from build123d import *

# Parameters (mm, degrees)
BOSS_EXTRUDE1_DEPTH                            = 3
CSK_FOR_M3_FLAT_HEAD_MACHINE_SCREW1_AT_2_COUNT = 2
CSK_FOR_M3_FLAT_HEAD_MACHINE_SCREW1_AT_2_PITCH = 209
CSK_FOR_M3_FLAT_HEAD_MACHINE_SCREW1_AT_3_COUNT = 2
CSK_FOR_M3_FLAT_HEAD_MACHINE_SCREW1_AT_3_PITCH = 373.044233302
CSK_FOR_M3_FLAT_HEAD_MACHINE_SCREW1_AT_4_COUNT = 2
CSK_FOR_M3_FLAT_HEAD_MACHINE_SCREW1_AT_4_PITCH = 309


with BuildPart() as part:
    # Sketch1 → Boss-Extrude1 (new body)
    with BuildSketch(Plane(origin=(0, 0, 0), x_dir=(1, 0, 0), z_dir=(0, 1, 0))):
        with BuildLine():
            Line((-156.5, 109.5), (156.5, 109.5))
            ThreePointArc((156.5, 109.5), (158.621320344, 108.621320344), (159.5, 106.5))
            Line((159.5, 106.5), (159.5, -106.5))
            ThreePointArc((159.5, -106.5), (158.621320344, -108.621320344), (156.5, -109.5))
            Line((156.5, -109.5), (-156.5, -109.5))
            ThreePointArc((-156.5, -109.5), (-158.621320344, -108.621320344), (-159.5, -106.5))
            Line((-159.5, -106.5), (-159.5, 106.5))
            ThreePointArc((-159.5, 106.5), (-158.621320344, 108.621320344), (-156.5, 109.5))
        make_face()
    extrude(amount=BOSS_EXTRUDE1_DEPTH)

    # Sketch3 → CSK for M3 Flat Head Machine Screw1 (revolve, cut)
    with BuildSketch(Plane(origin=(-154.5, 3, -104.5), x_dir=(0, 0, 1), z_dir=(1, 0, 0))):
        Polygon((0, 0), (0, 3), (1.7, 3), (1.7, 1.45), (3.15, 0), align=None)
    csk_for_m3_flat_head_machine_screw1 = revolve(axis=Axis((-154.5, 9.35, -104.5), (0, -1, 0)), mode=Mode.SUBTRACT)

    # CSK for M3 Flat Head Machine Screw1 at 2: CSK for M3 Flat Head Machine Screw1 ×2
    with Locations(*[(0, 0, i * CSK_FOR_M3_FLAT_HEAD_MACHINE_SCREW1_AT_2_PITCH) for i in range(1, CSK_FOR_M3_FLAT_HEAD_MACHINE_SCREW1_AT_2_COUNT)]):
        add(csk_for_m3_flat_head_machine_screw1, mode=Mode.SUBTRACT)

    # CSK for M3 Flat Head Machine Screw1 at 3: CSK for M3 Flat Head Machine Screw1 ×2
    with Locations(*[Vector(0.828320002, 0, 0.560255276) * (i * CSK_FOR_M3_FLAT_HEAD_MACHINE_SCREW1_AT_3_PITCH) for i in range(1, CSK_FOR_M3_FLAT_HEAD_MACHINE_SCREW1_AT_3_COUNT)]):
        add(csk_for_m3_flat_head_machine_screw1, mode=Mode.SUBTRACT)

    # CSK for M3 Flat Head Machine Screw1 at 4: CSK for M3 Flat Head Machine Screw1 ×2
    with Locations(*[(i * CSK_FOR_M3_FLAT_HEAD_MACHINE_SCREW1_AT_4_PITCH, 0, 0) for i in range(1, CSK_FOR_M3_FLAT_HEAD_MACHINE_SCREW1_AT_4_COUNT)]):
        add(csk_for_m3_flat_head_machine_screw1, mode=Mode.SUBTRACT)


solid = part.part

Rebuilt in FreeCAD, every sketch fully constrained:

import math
import FreeCAD as App
import Part
import Sketcher

V = App.Vector
Q = App.Units.Quantity

doc = App.newDocument("Part")
body = doc.addObject("PartDesign::Body", "Body")

# Sketch on XZ plane
sketch1 = body.newObject("Sketcher::SketchObject", "Sketch")
sketch1.AttachmentSupport = (doc.getObject("XZ_Plane"), [""])
sketch1.MapMode = "FlatFace"
sketch1.addGeometry(Part.LineSegment(V(156.5, -109.5, 0), V(-156.5, -109.5, 0)), False)
sketch1.addGeometry(Part.ArcOfCircle(Part.Circle(V(-156.5, -106.5, 0), V(0, 0, 1), 3), math.radians(180), math.radians(270)), False)
sketch1.addGeometry(Part.LineSegment(V(-159.5, -106.5, 0), V(-159.5, 106.5, 0)), False)
sketch1.addGeometry(Part.ArcOfCircle(Part.Circle(V(-156.5, 106.5, 0), V(0, 0, 1), 3), math.radians(90), math.radians(180)), False)
sketch1.addGeometry(Part.LineSegment(V(-156.5, 109.5, 0), V(156.5, 109.5, 0)), False)
sketch1.addGeometry(Part.ArcOfCircle(Part.Circle(V(156.5, 106.5, 0), V(0, 0, 1), 3), math.radians(0), math.radians(90)), False)
sketch1.addGeometry(Part.LineSegment(V(159.5, 106.5, 0), V(159.5, -106.5, 0)), False)
sketch1.addGeometry(Part.ArcOfCircle(Part.Circle(V(156.5, -106.5, 0), V(0, 0, 1), 3), math.radians(-90), math.radians(0)), False)
sketch1.addConstraint(Sketcher.Constraint("Tangent", 0, 2, 1, 2))
sketch1.addConstraint(Sketcher.Constraint("Tangent", 1, 1, 2, 1))
sketch1.addConstraint(Sketcher.Constraint("Tangent", 2, 2, 3, 2))
sketch1.addConstraint(Sketcher.Constraint("Tangent", 3, 1, 4, 1))
sketch1.addConstraint(Sketcher.Constraint("Tangent", 4, 2, 5, 2))
sketch1.addConstraint(Sketcher.Constraint("Tangent", 5, 1, 6, 1))
sketch1.addConstraint(Sketcher.Constraint("Tangent", 6, 2, 7, 2))
sketch1.addConstraint(Sketcher.Constraint("Tangent", 7, 1, 0, 1))
sketch1.addConstraint(Sketcher.Constraint("Horizontal", 0))
sketch1.addConstraint(Sketcher.Constraint("Vertical", 2))
sketch1.addConstraint(Sketcher.Constraint("Horizontal", 4))
sketch1.addConstraint(Sketcher.Constraint("Vertical", 6))
sketch1.addConstraint(Sketcher.Constraint("Equal", 1, 3))
sketch1.addConstraint(Sketcher.Constraint("Equal", 3, 5))
sketch1.addConstraint(Sketcher.Constraint("Equal", 5, 7))
sketch1.addConstraint(Sketcher.Constraint("Symmetric", 1, 3, 5, 3, -1, 1))
sketch1.addConstraint(Sketcher.Constraint("Radius", 1, 3.0))
sketch1.addConstraint(Sketcher.Constraint("DistanceX", 0, 2, 0, 1, 313.0))
sketch1.addConstraint(Sketcher.Constraint("DistanceY", 2, 1, 2, 2, 213.0))
pad1 = body.newObject("PartDesign::Pad", "Pad")
pad1.Profile = sketch1
pad1.Length = 3
pad1.Reversed = True

# Sketch on YZ plane
sketch2 = body.newObject("Sketcher::SketchObject", "Sketch001")
sketch2.AttachmentSupport = (doc.getObject("YZ_Plane"), [""])
sketch2.MapMode = "FlatFace"
sketch2.AttachmentOffset = App.Placement(V(0, 0, -154.5), App.Rotation())
sketch2.addGeometry(Part.LineSegment(V(0, -104.5, 0), V(3, -104.5, 0)), False)
sketch2.addGeometry(Part.LineSegment(V(3, -104.5, 0), V(3, -101.3, 0)), False)
sketch2.addGeometry(Part.LineSegment(V(3, -101.3, 0), V(1.6, -102.8, 0)), False)
sketch2.addGeometry(Part.LineSegment(V(1.6, -102.8, 0), V(0, -102.8, 0)), False)
sketch2.addGeometry(Part.LineSegment(V(0, -102.8, 0), V(0, -104.5, 0)), False)
sketch2.addGeometry(Part.LineSegment(V(3, -104.5, 0), V(0, -104.5, 0)), True)  # axis
sketch2.addConstraint(Sketcher.Constraint("Coincident", 0, 2, 1, 1))
sketch2.addConstraint(Sketcher.Constraint("Coincident", 1, 2, 2, 1))
sketch2.addConstraint(Sketcher.Constraint("Coincident", 2, 2, 3, 1))
sketch2.addConstraint(Sketcher.Constraint("Coincident", 3, 2, 4, 1))
sketch2.addConstraint(Sketcher.Constraint("Coincident", 4, 2, 0, 1))
sketch2.addConstraint(Sketcher.Constraint("Horizontal", 0))
sketch2.addConstraint(Sketcher.Constraint("Vertical", 1))
sketch2.addConstraint(Sketcher.Constraint("Horizontal", 3))
sketch2.addConstraint(Sketcher.Constraint("Vertical", 4))
sketch2.addConstraint(Sketcher.Constraint("Horizontal", 5))
sketch2.addConstraint(Sketcher.Constraint("Coincident", 5, 1, 0, 2))
sketch2.addConstraint(Sketcher.Constraint("PointOnObject", 3, 2, -2))
sketch2.addConstraint(Sketcher.Constraint("PointOnObject", 5, 2, -2))
sketch2.addConstraint(Sketcher.Constraint("DistanceX", 0, 1, 0, 2, 3.0))
sketch2.addConstraint(Sketcher.Constraint("Angle", 2, Q("-135 deg")))
sketch2.addConstraint(Sketcher.Constraint("DistanceY", 4, 2, 4, 1, 1.7))
sketch2.addConstraint(Sketcher.Constraint("DistanceX", 3, 2, 3, 1, 1.55))
sketch2.addConstraint(Sketcher.Constraint("DistanceY", 0, 2, -1, 1, 104.5))
groove = body.newObject("PartDesign::Groove", "Groove")
groove.Profile = sketch2
groove.ReferenceAxis = (sketch2, ["Axis0"])
groove.Angle = 360
doc.recompute()

linearpattern = body.newObject("PartDesign::LinearPattern", "LinearPattern")
linearpattern.Originals = [groove]
linearpattern.Direction = (doc.getObject("Z_Axis"), [""])
linearpattern.Mode = "offset"
linearpattern.Offset = 209
linearpattern.Occurrences = 2
body.Tip = linearpattern
doc.recompute()

datumline = body.newObject("PartDesign::Line", "DatumLine")
datumline.Placement = App.Placement(V(0, 0, 0), App.Rotation(V(0, 0, 1), V(0.828320002, 0, 0.560255276)))
linearpattern2 = body.newObject("PartDesign::LinearPattern", "LinearPattern001")
linearpattern2.Originals = [groove]
linearpattern2.Direction = (datumline, [""])
linearpattern2.Mode = "offset"
linearpattern2.Offset = 373.044233
linearpattern2.Occurrences = 2
body.Tip = linearpattern2
doc.recompute()

linearpattern3 = body.newObject("PartDesign::LinearPattern", "LinearPattern002")
linearpattern3.Originals = [groove]
linearpattern3.Direction = (doc.getObject("X_Axis"), [""])
linearpattern3.Mode = "offset"
linearpattern3.Offset = 309
linearpattern3.Occurrences = 2
body.Tip = linearpattern3

doc.recompute()
